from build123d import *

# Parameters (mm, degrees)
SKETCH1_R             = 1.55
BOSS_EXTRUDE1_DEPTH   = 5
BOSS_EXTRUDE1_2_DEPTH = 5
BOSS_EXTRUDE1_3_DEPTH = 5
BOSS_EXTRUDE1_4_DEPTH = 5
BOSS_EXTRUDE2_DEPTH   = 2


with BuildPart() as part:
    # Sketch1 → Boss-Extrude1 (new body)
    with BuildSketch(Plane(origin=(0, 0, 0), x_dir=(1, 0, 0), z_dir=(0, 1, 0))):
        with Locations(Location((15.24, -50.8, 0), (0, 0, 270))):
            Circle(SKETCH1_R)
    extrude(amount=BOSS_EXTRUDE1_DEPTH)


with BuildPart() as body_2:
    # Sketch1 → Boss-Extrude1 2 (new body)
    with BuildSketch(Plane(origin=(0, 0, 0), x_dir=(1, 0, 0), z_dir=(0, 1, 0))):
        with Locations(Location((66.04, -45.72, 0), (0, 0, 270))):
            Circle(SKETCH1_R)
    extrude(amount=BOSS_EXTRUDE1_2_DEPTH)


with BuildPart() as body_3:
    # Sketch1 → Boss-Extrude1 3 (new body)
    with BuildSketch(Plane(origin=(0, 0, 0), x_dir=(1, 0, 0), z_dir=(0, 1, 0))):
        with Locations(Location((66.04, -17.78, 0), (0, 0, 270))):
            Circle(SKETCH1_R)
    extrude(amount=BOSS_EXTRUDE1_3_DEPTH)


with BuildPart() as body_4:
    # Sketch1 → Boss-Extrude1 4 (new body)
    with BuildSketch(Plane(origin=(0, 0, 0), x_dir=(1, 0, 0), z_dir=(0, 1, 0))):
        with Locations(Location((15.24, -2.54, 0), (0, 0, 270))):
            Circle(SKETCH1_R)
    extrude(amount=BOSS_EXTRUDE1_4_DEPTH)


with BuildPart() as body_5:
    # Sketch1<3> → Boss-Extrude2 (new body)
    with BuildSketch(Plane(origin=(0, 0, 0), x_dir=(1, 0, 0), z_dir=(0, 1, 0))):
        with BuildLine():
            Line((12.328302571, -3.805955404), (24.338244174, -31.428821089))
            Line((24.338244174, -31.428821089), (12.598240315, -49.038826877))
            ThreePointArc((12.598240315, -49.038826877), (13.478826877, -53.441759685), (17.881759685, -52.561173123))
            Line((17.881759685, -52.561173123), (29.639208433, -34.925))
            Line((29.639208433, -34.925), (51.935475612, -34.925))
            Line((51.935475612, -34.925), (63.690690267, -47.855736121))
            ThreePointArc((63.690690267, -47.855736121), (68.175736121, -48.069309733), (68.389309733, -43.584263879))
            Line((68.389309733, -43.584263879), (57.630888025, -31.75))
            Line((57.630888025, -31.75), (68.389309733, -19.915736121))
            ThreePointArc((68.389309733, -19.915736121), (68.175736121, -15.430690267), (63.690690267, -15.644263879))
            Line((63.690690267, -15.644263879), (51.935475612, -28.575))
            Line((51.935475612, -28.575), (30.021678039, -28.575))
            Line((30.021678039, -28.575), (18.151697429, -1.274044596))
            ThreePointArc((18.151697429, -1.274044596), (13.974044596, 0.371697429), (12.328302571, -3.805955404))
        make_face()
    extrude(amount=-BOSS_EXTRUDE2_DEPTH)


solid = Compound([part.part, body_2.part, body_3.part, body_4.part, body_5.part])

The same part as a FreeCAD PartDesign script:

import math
import FreeCAD as App
import Part
import Sketcher

V = App.Vector

doc = App.newDocument("Part")
body = doc.addObject("PartDesign::Body", "Body")

# Sketch on XZ plane
sketch1 = doc.addObject("Sketcher::SketchObject", "Sketch")
body.addObject(sketch1)
sketch1.AttachmentSupport = (doc.XZ_Plane, [""])
sketch1.MapMode = "FlatFace"
sketch1.addGeometry(Part.Circle(V(15.2, 50.8, 0), V(0, 0, 1), 1.6), False)
sketch1.addConstraint([
    Sketcher.Constraint("Diameter", 0, 3.1),
    Sketcher.Constraint("DistanceY", -1, 1, 0, 3, 50.8),
    Sketcher.Constraint("DistanceX", -1, 1, 0, 3, 15.24),
])
pad1 = doc.addObject("PartDesign::Pad", "Pad")
body.addObject(pad1)
pad1.Profile = sketch1
pad1.Length = 5
pad1.Reversed = True
body2 = doc.addObject("PartDesign::Body", "Body001")

# Sketch on XZ plane
sketch2 = doc.addObject("Sketcher::SketchObject", "Sketch001")
body2.addObject(sketch2)
sketch2.AttachmentSupport = (doc.getObject("XZ_Plane001"), [""])
sketch2.MapMode = "FlatFace"
sketch2.addGeometry(Part.Circle(V(66, 45.7, 0), V(0, 0, 1), 1.6), False)
sketch2.addConstraint([
    Sketcher.Constraint("Diameter", 0, 3.1),
    Sketcher.Constraint("DistanceX", -1, 1, 0, 3, 66.04),
    Sketcher.Constraint("DistanceY", -1, 1, 0, 3, 45.72),
])
pad2 = doc.addObject("PartDesign::Pad", "Pad001")
body2.addObject(pad2)
pad2.Profile = sketch2
pad2.Length = 5
pad2.Reversed = True
body3 = doc.addObject("PartDesign::Body", "Body002")

# Sketch on XZ plane
sketch3 = doc.addObject("Sketcher::SketchObject", "Sketch002")
body3.addObject(sketch3)
sketch3.AttachmentSupport = (doc.getObject("XZ_Plane002"), [""])
sketch3.MapMode = "FlatFace"
sketch3.addGeometry(Part.Circle(V(66, 17.8, 0), V(0, 0, 1), 1.6), False)
sketch3.addConstraint([
    Sketcher.Constraint("Diameter", 0, 3.1),
    Sketcher.Constraint("DistanceX", -1, 1, 0, 3, 66.04),
    Sketcher.Constraint("DistanceY", -1, 1, 0, 3, 17.78),
])
pad3 = doc.addObject("PartDesign::Pad", "Pad002")
body3.addObject(pad3)
pad3.Profile = sketch3
pad3.Length = 5
pad3.Reversed = True
body4 = doc.addObject("PartDesign::Body", "Body003")

# Sketch on XZ plane
sketch4 = doc.addObject("Sketcher::SketchObject", "Sketch003")
body4.addObject(sketch4)
sketch4.AttachmentSupport = (doc.getObject("XZ_Plane003"), [""])
sketch4.MapMode = "FlatFace"
sketch4.addGeometry(Part.Circle(V(15.2, 2.5, 0), V(0, 0, 1), 1.6), False)
sketch4.addConstraint([
    Sketcher.Constraint("Diameter", 0, 3.1),
    Sketcher.Constraint("DistanceX", -1, 1, 0, 3, 15.24),
    Sketcher.Constraint("DistanceY", -1, 1, 0, 3, 2.54),
])
pad4 = doc.addObject("PartDesign::Pad", "Pad003")
body4.addObject(pad4)
pad4.Profile = sketch4
pad4.Length = 5
pad4.Reversed = True
body5 = doc.addObject("PartDesign::Body", "Body004")

# Sketch on XZ plane
sketch5 = doc.addObject("Sketcher::SketchObject", "Sketch004")
body5.addObject(sketch5)
sketch5.AttachmentSupport = (doc.getObject("XZ_Plane004"), [""])
sketch5.MapMode = "FlatFace"
sketch5.addGeometry([
    Part.LineSegment(V(12.3, 3.8, 0), V(24.3, 31.4, 0)),  # 0
    Part.LineSegment(V(24.3, 31.4, 0), V(12.6, 49, 0)),  # 1
    Part.ArcOfCircle(Part.Circle(V(15.2, 50.8, 0), V(0, 0, 1), 3.2), math.radians(34), math.radians(214)),  # 2
    Part.LineSegment(V(17.9, 52.6, 0), V(29.6, 34.9, 0)),  # 3
    Part.LineSegment(V(29.6, 34.9, 0), V(51.9, 34.9, 0)),  # 4
    Part.LineSegment(V(51.9, 34.9, 0), V(63.7, 47.9, 0)),  # 5
    Part.ArcOfCircle(Part.Circle(V(66, 45.7, 0), V(0, 0, 1), 3.2), math.radians(-42), math.radians(138)),  # 6
    Part.LineSegment(V(68.4, 43.6, 0), V(57.6, 31.8, 0)),  # 7
    Part.LineSegment(V(57.6, 31.8, 0), V(68.4, 19.9, 0)),  # 8
    Part.ArcOfCircle(Part.Circle(V(66, 17.8, 0), V(0, 0, 1), 3.2), math.radians(-138), math.radians(42)),  # 9
    Part.LineSegment(V(63.7, 15.6, 0), V(51.9, 28.6, 0)),  # 10
    Part.LineSegment(V(51.9, 28.6, 0), V(30, 28.6, 0)),  # 11
    Part.LineSegment(V(30, 28.6, 0), V(18.2, 1.3, 0)),  # 12
    Part.ArcOfCircle(Part.Circle(V(15.2, 2.5, 0), V(0, 0, 1), 3.2), math.radians(157), math.radians(337)),  # 13
], False)
sketch5.addConstraint([
    Sketcher.Constraint("Coincident", 0, 2, 1, 1),
    Sketcher.Constraint("Tangent", 1, 2, 2, 2),
    Sketcher.Constraint("Tangent", 2, 1, 3, 1),
    Sketcher.Constraint("Coincident", 3, 2, 4, 1),
    Sketcher.Constraint("Coincident", 4, 2, 5, 1),
    Sketcher.Constraint("Tangent", 5, 2, 6, 2),
    Sketcher.Constraint("Tangent", 6, 1, 7, 1),
    Sketcher.Constraint("Coincident", 7, 2, 8, 1),
    Sketcher.Constraint("Tangent", 8, 2, 9, 2),
    Sketcher.Constraint("Tangent", 9, 1, 10, 1),
    Sketcher.Constraint("Coincident", 10, 2, 11, 1),
    Sketcher.Constraint("Coincident", 11, 2, 12, 1),
    Sketcher.Constraint("Tangent", 12, 2, 13, 2),
    Sketcher.Constraint("Tangent", 13, 1, 0, 1),
    Sketcher.Constraint("Horizontal", 4),
    Sketcher.Constraint("Horizontal", 11),
    Sketcher.Constraint("Equal", 2, 6),
    Sketcher.Constraint("Equal", 6, 9),
    Sketcher.Constraint("Equal", 9, 13),
    Sketcher.Constraint("Parallel", 1, 3),
    Sketcher.Constraint("Parallel", 5, 7),
    Sketcher.Constraint("Parallel", 8, 10),
    Sketcher.Constraint("Parallel", 0, 12),
    Sketcher.Constraint("Vertical", 6, 3, 9, 3),
    Sketcher.Constraint("Vertical", 2, 3, 13, 3),
    Sketcher.Constraint("Vertical", 6, 1, 8, 2),
    Sketcher.Constraint("Vertical", 4, 2, 10, 2),
    Sketcher.Constraint("Radius", 2, 3.175),
    Sketcher.Constraint("DistanceY", -1, 1, 2, 3, 50.8),
    Sketcher.Constraint("DistanceX", 2, 3, 6, 3, 50.8),
    Sketcher.Constraint("DistanceX", -1, 1, 2, 3, 15.24),
    Sketcher.Constraint("DistanceY", -1, 1, 6, 3, 45.72),
    Sketcher.Constraint("DistanceY", -1, 1, 9, 3, 17.78),
    Sketcher.Constraint("DistanceY", -1, 1, 13, 3, 2.54),
    Sketcher.Constraint("DistanceY", 10, 2, 4, 2, 6.35),
    Sketcher.Constraint("DistanceX", 3, 2, 6, 1, 38.750101),
    Sketcher.Constraint("Distance", 0, 30.12078),
    Sketcher.Constraint("Distance", 12, 29.76976),
])
pad5 = doc.addObject("PartDesign::Pad", "Pad004")
body5.addObject(pad5)
pad5.Profile = sketch5
pad5.Length = 2

doc.recompute()
